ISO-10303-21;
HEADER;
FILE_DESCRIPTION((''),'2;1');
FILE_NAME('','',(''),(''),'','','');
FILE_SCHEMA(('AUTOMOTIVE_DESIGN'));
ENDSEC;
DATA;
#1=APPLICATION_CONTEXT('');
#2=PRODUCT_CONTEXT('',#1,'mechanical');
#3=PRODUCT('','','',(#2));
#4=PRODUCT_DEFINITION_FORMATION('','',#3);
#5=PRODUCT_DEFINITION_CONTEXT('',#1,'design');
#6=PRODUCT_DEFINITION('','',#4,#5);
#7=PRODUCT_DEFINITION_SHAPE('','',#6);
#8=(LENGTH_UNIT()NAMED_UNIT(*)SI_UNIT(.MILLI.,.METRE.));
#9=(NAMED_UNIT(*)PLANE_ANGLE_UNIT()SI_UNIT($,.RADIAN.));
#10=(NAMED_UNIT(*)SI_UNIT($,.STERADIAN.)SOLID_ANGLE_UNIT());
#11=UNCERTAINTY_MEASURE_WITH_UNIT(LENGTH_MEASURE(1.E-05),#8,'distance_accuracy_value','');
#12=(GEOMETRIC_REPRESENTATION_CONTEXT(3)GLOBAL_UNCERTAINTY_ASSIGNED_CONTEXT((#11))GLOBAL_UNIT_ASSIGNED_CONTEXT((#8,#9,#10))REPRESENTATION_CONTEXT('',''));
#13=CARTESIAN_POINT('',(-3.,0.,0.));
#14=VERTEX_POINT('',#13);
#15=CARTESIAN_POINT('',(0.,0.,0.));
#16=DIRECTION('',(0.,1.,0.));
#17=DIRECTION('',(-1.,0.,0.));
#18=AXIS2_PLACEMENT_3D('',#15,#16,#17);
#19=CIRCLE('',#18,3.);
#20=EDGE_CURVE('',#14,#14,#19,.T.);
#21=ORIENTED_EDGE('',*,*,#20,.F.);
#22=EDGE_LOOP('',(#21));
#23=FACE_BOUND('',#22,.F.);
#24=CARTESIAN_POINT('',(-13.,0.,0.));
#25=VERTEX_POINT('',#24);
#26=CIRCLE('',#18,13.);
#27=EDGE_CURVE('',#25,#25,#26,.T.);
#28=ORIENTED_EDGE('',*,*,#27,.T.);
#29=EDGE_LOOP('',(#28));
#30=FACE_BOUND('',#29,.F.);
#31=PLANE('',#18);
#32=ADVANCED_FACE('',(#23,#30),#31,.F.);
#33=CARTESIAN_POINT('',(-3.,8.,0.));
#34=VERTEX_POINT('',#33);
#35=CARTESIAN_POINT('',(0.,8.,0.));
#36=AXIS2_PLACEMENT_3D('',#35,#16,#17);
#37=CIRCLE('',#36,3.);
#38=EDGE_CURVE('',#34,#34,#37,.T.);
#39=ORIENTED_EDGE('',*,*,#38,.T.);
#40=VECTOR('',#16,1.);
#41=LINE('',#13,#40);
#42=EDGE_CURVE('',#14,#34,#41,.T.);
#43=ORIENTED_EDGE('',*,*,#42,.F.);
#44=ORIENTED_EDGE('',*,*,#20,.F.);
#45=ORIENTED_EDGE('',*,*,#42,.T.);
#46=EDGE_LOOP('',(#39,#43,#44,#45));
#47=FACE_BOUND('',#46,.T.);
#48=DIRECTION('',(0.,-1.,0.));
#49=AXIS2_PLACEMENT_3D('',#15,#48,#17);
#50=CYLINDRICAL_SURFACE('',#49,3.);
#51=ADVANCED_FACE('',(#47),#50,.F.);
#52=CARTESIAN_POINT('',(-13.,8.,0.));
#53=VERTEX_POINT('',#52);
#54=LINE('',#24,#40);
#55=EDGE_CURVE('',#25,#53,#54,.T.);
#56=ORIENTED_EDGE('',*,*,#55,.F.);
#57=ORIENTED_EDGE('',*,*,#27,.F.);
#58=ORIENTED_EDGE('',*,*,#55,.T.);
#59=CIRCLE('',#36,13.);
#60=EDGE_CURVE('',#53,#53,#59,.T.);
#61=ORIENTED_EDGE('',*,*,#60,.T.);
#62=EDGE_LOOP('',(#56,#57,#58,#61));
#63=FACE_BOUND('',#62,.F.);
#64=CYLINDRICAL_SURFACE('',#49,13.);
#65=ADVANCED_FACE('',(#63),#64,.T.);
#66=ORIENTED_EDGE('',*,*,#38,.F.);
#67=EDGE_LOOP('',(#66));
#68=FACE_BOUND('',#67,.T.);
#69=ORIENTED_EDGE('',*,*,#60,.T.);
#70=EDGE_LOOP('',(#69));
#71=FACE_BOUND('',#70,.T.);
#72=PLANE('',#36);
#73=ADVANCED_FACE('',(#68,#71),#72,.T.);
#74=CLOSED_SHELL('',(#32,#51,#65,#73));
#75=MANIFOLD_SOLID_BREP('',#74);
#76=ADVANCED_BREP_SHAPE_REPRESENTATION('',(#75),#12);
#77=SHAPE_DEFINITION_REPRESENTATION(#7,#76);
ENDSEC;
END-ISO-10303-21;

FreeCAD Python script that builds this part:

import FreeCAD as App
import Part
import Sketcher
from FreeCAD import Vector

doc = App.newDocument("Part")
body = doc.addObject("PartDesign::Body", "Body")

# Sketch on XZ plane
sketch1 = doc.addObject("Sketcher::SketchObject", "Sketch")
body.addObject(sketch1)
sketch1.AttachmentSupport = (doc.XZ_Plane, [""])
sketch1.MapMode = "FlatFace"
sketch1.addGeometry(Part.Circle(Vector(0, 0, 0), Vector(0, 0, 1), 13), False)
sketch1.addGeometry(Part.Circle(Vector(0, 0, 0), Vector(0, 0, 1), 3), False)
sketch1.addConstraint(Sketcher.Constraint("Coincident", 0, 3, -1, 1))
sketch1.addConstraint(Sketcher.Constraint("Coincident", 1, 3, -1, 1))
sketch1.addConstraint(Sketcher.Constraint("Diameter", 0, 26.0))
sketch1.addConstraint(Sketcher.Constraint("Diameter", 1, 6.0))
pad1 = doc.addObject("PartDesign::Pad", "Pad")
body.addObject(pad1)
pad1.Profile = sketch1
pad1.Length = 8
pad1.Reversed = True

doc.recompute()
